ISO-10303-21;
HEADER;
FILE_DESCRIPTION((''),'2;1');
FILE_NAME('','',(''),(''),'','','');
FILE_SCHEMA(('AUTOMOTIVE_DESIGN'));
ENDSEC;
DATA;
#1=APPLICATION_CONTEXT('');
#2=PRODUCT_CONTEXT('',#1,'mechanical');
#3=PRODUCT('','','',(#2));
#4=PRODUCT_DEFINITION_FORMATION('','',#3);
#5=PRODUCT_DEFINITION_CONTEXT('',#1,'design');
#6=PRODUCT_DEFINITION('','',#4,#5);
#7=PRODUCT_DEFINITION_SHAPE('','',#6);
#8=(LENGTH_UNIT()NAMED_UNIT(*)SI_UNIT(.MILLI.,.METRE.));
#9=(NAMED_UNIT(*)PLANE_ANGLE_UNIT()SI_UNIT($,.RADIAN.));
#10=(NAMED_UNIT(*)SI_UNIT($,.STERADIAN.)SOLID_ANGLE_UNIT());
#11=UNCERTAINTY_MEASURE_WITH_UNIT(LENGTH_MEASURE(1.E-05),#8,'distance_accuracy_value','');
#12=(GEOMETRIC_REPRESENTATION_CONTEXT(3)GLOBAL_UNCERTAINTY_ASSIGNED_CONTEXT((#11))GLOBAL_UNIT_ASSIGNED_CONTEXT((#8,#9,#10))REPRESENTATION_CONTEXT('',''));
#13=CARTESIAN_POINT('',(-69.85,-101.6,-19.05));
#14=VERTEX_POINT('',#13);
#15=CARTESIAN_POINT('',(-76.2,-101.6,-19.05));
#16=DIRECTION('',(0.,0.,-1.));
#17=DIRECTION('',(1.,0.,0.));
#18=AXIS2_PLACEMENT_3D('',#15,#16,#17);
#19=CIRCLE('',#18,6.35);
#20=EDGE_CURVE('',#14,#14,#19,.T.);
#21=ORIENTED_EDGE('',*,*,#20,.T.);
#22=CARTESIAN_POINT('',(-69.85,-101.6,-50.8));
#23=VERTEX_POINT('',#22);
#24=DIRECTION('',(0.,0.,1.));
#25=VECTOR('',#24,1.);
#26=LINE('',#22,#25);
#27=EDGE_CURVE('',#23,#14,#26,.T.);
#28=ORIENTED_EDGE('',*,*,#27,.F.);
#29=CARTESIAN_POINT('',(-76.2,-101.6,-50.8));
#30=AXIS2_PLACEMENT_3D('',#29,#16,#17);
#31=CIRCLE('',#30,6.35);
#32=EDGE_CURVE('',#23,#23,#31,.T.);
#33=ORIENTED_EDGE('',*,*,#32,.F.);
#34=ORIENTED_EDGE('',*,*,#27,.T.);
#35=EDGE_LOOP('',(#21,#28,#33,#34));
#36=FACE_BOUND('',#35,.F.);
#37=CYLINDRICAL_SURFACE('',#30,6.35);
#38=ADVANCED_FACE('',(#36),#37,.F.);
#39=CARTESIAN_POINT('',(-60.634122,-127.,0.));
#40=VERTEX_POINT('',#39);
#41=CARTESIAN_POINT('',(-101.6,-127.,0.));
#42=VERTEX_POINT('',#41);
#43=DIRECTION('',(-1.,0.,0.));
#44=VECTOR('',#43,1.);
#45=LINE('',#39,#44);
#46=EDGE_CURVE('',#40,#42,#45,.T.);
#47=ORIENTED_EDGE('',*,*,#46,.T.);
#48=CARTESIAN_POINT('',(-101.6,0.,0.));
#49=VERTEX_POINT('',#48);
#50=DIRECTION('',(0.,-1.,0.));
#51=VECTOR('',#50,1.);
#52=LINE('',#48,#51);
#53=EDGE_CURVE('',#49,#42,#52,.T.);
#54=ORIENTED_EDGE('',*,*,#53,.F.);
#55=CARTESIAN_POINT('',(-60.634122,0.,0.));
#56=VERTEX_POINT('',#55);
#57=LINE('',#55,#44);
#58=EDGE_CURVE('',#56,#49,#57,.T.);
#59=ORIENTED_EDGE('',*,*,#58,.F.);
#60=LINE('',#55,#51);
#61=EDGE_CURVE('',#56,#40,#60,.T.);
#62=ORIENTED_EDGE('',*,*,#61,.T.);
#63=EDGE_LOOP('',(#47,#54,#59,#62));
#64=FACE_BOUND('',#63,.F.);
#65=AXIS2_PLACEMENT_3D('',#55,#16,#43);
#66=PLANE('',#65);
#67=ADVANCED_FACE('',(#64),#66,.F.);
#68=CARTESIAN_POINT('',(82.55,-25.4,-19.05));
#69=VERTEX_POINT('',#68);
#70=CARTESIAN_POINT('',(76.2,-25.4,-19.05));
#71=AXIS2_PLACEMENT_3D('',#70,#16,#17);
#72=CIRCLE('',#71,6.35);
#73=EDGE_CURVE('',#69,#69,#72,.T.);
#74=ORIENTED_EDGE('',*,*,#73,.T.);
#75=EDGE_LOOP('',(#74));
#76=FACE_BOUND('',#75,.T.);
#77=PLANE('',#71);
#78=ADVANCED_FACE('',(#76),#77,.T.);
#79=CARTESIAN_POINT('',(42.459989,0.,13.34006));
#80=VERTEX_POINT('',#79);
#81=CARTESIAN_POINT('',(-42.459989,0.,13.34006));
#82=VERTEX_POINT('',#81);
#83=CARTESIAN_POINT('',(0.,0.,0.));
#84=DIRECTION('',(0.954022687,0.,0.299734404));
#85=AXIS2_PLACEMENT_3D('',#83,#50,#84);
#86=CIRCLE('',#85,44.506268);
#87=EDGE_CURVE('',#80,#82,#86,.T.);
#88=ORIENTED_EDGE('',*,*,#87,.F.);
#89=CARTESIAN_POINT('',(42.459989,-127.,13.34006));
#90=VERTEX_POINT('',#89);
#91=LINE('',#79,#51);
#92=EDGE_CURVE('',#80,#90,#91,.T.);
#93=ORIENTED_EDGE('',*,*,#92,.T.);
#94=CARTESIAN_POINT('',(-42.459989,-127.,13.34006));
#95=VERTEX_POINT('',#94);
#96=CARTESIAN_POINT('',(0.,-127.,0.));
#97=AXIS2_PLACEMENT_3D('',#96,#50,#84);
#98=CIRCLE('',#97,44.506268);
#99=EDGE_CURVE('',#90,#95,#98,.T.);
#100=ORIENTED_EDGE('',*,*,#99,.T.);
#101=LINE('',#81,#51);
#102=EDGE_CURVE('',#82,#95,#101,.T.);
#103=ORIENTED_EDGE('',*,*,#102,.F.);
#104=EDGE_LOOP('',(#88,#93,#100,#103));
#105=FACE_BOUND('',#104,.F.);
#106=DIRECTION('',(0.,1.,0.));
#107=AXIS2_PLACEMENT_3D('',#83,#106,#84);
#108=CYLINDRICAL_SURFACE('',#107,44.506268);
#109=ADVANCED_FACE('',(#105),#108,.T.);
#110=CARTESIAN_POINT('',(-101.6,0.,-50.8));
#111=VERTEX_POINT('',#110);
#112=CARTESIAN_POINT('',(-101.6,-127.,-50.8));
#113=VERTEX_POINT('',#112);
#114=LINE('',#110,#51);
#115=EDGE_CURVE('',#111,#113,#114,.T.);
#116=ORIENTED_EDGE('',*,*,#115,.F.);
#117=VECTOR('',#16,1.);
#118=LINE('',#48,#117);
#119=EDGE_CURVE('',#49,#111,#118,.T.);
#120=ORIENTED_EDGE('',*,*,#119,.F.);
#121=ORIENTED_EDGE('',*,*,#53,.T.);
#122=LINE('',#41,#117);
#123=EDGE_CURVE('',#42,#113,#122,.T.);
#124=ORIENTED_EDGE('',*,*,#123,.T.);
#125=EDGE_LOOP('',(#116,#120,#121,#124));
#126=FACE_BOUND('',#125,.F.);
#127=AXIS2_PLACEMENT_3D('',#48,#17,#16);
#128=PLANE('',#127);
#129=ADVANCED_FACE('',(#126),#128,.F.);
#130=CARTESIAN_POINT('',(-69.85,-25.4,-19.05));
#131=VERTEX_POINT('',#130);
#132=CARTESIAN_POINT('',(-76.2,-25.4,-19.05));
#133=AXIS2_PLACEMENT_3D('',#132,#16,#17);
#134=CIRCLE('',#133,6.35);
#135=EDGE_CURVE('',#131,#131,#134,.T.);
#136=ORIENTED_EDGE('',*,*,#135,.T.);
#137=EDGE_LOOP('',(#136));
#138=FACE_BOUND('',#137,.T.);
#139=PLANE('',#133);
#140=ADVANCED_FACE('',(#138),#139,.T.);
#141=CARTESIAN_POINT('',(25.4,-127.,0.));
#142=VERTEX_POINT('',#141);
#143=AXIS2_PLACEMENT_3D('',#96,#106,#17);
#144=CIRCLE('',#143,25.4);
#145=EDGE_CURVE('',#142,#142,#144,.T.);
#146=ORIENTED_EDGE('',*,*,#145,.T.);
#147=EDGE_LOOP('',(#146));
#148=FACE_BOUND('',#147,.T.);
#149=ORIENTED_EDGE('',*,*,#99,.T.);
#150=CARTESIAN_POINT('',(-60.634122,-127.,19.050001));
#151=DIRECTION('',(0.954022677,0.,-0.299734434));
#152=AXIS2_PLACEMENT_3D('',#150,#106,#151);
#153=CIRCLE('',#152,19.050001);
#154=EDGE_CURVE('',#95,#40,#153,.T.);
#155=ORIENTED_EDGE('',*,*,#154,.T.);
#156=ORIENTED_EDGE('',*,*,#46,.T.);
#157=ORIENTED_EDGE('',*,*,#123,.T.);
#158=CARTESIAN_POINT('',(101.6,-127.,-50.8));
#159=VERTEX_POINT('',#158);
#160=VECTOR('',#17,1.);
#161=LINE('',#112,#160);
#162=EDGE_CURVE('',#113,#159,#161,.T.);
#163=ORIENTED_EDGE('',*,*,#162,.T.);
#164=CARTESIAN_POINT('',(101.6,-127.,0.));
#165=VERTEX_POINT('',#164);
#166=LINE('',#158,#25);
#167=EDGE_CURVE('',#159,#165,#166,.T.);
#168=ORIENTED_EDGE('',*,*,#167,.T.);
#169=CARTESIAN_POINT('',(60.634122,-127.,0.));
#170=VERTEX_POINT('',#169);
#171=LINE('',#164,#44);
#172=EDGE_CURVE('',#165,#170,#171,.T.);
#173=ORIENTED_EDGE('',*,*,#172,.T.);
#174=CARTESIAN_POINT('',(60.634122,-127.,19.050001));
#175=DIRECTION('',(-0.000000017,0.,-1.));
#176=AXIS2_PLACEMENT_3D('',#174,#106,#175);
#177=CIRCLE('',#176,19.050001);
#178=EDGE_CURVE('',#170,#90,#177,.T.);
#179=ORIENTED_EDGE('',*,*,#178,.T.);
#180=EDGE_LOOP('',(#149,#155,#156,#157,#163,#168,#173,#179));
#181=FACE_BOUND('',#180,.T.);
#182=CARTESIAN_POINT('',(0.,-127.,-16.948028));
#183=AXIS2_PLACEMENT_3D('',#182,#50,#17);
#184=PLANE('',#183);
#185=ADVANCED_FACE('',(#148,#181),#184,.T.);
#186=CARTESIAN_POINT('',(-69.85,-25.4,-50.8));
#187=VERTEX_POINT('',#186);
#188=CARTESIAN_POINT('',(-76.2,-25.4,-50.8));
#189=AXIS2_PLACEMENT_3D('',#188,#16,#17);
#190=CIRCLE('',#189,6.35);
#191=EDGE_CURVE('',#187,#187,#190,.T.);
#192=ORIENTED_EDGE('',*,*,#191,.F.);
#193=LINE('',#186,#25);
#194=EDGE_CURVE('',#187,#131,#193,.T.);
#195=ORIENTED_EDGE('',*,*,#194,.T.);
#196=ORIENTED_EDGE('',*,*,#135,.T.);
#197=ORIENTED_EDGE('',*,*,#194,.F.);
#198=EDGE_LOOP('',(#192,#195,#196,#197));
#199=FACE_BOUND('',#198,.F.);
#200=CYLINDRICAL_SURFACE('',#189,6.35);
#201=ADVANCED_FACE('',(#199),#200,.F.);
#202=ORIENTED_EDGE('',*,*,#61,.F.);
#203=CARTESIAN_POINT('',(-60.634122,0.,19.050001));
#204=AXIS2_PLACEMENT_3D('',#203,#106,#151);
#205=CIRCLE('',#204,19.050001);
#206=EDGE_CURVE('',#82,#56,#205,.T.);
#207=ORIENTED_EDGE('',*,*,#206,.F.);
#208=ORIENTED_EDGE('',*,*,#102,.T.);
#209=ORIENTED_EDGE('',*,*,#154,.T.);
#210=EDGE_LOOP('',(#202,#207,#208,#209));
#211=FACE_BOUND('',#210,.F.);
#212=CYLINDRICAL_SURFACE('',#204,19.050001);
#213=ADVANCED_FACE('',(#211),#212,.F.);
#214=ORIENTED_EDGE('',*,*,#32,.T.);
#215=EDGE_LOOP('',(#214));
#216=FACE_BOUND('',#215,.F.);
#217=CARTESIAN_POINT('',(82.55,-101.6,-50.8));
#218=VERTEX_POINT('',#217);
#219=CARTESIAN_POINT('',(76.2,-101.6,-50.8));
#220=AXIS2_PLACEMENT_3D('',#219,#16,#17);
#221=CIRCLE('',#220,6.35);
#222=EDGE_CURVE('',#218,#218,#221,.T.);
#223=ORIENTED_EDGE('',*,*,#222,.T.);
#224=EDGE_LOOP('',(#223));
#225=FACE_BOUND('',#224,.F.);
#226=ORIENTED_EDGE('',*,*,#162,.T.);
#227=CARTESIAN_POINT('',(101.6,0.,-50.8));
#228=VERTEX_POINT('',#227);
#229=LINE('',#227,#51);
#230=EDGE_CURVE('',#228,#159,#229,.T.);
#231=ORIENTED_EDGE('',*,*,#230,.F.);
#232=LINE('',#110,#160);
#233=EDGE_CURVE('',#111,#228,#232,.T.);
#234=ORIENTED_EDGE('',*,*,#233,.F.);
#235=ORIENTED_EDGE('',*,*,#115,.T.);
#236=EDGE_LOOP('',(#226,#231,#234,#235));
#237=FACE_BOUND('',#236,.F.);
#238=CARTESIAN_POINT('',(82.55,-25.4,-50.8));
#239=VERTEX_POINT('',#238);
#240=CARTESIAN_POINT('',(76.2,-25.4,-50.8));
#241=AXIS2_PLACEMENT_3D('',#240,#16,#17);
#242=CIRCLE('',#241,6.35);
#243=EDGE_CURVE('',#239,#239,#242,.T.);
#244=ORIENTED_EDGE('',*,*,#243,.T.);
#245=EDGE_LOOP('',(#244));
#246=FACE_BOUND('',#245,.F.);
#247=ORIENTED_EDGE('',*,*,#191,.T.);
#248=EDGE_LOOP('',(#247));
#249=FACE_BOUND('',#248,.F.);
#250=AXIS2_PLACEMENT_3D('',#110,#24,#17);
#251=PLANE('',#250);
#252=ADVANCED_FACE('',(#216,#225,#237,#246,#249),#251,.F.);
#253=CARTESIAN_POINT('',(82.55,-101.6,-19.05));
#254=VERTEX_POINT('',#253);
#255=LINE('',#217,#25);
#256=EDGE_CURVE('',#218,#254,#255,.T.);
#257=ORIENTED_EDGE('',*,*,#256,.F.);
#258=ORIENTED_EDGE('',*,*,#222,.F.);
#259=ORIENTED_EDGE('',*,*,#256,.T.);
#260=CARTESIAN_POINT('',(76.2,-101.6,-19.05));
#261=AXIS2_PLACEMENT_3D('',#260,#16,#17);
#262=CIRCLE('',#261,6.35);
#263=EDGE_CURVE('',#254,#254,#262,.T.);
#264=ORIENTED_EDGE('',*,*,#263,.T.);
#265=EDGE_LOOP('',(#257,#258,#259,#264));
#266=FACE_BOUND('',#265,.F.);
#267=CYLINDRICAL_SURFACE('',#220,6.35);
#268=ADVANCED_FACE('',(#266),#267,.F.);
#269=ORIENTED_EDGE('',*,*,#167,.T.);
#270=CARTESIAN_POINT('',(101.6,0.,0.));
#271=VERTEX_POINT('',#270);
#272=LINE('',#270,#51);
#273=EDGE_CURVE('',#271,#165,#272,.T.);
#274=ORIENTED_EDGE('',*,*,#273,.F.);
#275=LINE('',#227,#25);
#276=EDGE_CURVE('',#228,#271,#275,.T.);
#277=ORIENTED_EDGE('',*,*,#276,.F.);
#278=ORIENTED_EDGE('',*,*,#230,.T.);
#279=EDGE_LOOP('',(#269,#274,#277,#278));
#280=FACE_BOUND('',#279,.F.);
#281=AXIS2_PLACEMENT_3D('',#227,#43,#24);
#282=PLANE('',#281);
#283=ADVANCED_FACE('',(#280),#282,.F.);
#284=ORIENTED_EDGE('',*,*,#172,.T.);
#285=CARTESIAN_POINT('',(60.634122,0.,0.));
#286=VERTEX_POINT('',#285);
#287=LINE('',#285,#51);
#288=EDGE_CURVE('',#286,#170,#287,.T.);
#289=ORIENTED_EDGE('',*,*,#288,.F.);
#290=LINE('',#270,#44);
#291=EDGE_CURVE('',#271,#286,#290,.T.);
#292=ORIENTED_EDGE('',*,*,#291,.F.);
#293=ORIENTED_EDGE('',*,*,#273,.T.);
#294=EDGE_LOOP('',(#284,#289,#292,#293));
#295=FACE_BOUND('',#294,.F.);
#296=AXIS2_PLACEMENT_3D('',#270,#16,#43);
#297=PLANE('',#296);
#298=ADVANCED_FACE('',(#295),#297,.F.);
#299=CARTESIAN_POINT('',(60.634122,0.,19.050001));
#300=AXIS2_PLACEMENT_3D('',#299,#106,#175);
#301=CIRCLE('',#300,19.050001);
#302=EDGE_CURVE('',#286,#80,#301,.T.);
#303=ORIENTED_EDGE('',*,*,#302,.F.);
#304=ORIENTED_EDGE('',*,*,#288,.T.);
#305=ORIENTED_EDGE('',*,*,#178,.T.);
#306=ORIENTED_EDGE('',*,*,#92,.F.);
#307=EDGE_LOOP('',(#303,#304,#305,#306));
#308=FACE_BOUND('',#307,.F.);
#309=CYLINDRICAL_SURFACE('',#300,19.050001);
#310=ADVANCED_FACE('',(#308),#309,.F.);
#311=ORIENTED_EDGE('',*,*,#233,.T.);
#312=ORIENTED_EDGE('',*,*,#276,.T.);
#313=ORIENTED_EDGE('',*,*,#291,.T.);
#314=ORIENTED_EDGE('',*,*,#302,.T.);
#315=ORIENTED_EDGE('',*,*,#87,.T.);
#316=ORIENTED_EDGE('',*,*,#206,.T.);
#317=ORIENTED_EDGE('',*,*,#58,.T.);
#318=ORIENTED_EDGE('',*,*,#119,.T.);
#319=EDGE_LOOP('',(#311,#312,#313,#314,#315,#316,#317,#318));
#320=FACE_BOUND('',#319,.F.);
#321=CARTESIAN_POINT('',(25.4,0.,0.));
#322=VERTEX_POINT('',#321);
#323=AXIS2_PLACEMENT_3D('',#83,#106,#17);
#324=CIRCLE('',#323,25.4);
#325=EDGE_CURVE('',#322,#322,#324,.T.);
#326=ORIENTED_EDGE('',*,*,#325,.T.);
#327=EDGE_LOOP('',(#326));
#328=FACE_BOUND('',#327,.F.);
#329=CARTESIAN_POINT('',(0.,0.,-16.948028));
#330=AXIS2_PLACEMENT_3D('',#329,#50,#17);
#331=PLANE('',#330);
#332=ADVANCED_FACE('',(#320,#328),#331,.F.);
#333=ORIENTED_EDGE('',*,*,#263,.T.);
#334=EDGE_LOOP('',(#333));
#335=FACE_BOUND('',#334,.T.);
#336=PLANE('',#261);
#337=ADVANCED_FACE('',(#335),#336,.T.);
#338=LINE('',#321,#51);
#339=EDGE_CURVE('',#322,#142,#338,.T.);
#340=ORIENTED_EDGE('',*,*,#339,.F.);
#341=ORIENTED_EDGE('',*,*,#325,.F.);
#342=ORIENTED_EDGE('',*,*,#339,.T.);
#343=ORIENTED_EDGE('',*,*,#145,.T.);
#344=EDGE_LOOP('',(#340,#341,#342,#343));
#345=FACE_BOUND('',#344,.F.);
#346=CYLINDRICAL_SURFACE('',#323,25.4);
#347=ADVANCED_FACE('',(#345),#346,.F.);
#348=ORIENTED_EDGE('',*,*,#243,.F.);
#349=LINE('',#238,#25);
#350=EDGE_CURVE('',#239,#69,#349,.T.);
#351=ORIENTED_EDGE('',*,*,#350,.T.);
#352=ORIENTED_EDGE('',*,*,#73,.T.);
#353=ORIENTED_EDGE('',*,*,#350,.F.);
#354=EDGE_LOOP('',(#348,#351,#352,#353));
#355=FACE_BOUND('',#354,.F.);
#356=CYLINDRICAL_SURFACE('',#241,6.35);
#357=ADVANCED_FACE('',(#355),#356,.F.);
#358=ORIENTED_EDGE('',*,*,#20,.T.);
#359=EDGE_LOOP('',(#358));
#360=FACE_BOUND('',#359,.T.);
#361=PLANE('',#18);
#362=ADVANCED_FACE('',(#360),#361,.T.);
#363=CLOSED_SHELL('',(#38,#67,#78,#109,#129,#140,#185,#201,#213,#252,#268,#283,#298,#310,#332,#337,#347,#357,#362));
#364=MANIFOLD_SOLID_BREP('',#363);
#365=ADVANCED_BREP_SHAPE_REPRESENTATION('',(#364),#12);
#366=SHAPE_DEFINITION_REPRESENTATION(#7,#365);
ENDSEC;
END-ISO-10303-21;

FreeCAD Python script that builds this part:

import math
import FreeCAD as App
import Part
import Sketcher
from FreeCAD import Vector
Q = App.Units.Quantity

doc = App.newDocument("Part")
body = doc.addObject("PartDesign::Body", "Body")

# Sketch on XZ plane
sketch1 = doc.addObject("Sketcher::SketchObject", "Sketch")
body.addObject(sketch1)
sketch1.AttachmentSupport = (doc.XZ_Plane, [""])
sketch1.MapMode = "FlatFace"
sketch1.addGeometry(Part.ArcOfCircle(Part.Circle(Vector(60.634122, 19.050001, 0), Vector(0, 0, 1), 19.050001), math.radians(-162.558347), math.radians(-90.000001)), False)
sketch1.addGeometry(Part.ArcOfCircle(Part.Circle(Vector(0, 0, 0), Vector(0, 0, 1), 44.506268), math.radians(17.441652), math.radians(162.558348)), False)
sketch1.addGeometry(Part.ArcOfCircle(Part.Circle(Vector(-60.634122, 19.050001, 0), Vector(0, 0, 1), 19.050001), math.radians(-89.999999), math.radians(-17.441653)), False)
sketch1.addGeometry(Part.LineSegment(Vector(-60.634122, 0, 0), Vector(-101.6, 0, 0)), False)
sketch1.addGeometry(Part.LineSegment(Vector(-101.6, 0, 0), Vector(-101.6, -50.8, 0)), False)
sketch1.addGeometry(Part.LineSegment(Vector(-101.6, -50.8, 0), Vector(101.6, -50.8, 0)), False)
sketch1.addGeometry(Part.LineSegment(Vector(101.6, -50.8, 0), Vector(101.6, 0, 0)), False)
sketch1.addGeometry(Part.LineSegment(Vector(101.6, 0, 0), Vector(60.634122, 0, 0)), False)
sketch1.addGeometry(Part.Circle(Vector(0, 0, 0), Vector(0, 0, 1), 25.4), False)
sketch1.addConstraint(Sketcher.Constraint("Tangent", 0, 1, 1, 1))
sketch1.addConstraint(Sketcher.Constraint("Tangent", 1, 2, 2, 2))
sketch1.addConstraint(Sketcher.Constraint("Tangent", 2, 1, 3, 1))
sketch1.addConstraint(Sketcher.Constraint("Coincident", 3, 2, 4, 1))
sketch1.addConstraint(Sketcher.Constraint("Coincident", 4, 2, 5, 1))
sketch1.addConstraint(Sketcher.Constraint("Coincident", 5, 2, 6, 1))
sketch1.addConstraint(Sketcher.Constraint("Coincident", 6, 2, 7, 1))
sketch1.addConstraint(Sketcher.Constraint("Tangent", 7, 2, 0, 2))
sketch1.addConstraint(Sketcher.Constraint("Horizontal", 3))
sketch1.addConstraint(Sketcher.Constraint("Vertical", 4))
sketch1.addConstraint(Sketcher.Constraint("Horizontal", 5))
sketch1.addConstraint(Sketcher.Constraint("Vertical", 6))
sketch1.addConstraint(Sketcher.Constraint("Horizontal", 7))
sketch1.addConstraint(Sketcher.Constraint("Coincident", 1, 3, -1, 1))
sketch1.addConstraint(Sketcher.Constraint("Coincident", 8, 3, -1, 1))
sketch1.addConstraint(Sketcher.Constraint("Equal", 0, 2))
sketch1.addConstraint(Sketcher.Constraint("Symmetric", 3, 2, 6, 2, -1, 1))
sketch1.addConstraint(Sketcher.Constraint("PointOnObject", 2, 1, -1))
sketch1.addConstraint(Sketcher.Constraint("Diameter", 8, Q("2 in")))
sketch1.addConstraint(Sketcher.Constraint("DistanceX", 5, 1, 5, 2, Q("8 in")))
sketch1.addConstraint(Sketcher.Constraint("DistanceY", 4, 2, 4, 1, Q("2 in")))
sketch1.addConstraint(Sketcher.Constraint("Radius", 0, Q("0.7500001 in")))
sketch1.addConstraint(Sketcher.Constraint("Radius", 1, 44.506268))
pad1 = doc.addObject("PartDesign::Pad", "Pad")
body.addObject(pad1)
pad1.Profile = sketch1
pad1.Length = Q("5 in")

# Sketch on XY plane
sketch2 = doc.addObject("Sketcher::SketchObject", "Sketch001")
body.addObject(sketch2)
sketch2.AttachmentSupport = (doc.XY_Plane, [""])
sketch2.MapMode = "FlatFace"
sketch2.AttachmentOffset = App.Placement(Vector(0, 0, -2 * 25.4), App.Rotation())
sketch2.addGeometry(Part.Circle(Vector(-76.2, -101.6, 0), Vector(0, 0, 1), 6.35), False)
sketch2.addGeometry(Part.Circle(Vector(-76.2, -25.4, 0), Vector(0, 0, 1), 6.35), False)
sketch2.addGeometry(Part.Circle(Vector(76.2, -25.4, 0), Vector(0, 0, 1), 6.35), False)
sketch2.addGeometry(Part.Circle(Vector(76.2, -101.6, 0), Vector(0, 0, 1), 6.35), False)
sketch2.addConstraint(Sketcher.Constraint("Equal", 0, 1))
sketch2.addConstraint(Sketcher.Constraint("Equal", 1, 2))
sketch2.addConstraint(Sketcher.Constraint("Equal", 2, 3))
sketch2.addConstraint(Sketcher.Constraint("Symmetric", 1, 3, 2, 3, -2))
sketch2.addConstraint(Sketcher.Constraint("Symmetric", 0, 3, 3, 3, -2))
sketch2.addConstraint(Sketcher.Constraint("Vertical", 0, 3, 1, 3))
sketch2.addConstraint(Sketcher.Constraint("Diameter", 0, Q("0.5 in")))
sketch2.addConstraint(Sketcher.Constraint("DistanceX", 0, 3, -1, 1, Q("3 in")))
sketch2.addConstraint(Sketcher.Constraint("DistanceY", 0, 3, -1, 1, Q("4 in")))
sketch2.addConstraint(Sketcher.Constraint("DistanceY", 1, 3, -1, 1, Q("1 in")))
pocket1 = doc.addObject("PartDesign::Pocket", "Pocket")
body.addObject(pocket1)
pocket1.Profile = sketch2
pocket1.Length = Q("1.25 in")
pocket1.Reversed = True

doc.recompute()
